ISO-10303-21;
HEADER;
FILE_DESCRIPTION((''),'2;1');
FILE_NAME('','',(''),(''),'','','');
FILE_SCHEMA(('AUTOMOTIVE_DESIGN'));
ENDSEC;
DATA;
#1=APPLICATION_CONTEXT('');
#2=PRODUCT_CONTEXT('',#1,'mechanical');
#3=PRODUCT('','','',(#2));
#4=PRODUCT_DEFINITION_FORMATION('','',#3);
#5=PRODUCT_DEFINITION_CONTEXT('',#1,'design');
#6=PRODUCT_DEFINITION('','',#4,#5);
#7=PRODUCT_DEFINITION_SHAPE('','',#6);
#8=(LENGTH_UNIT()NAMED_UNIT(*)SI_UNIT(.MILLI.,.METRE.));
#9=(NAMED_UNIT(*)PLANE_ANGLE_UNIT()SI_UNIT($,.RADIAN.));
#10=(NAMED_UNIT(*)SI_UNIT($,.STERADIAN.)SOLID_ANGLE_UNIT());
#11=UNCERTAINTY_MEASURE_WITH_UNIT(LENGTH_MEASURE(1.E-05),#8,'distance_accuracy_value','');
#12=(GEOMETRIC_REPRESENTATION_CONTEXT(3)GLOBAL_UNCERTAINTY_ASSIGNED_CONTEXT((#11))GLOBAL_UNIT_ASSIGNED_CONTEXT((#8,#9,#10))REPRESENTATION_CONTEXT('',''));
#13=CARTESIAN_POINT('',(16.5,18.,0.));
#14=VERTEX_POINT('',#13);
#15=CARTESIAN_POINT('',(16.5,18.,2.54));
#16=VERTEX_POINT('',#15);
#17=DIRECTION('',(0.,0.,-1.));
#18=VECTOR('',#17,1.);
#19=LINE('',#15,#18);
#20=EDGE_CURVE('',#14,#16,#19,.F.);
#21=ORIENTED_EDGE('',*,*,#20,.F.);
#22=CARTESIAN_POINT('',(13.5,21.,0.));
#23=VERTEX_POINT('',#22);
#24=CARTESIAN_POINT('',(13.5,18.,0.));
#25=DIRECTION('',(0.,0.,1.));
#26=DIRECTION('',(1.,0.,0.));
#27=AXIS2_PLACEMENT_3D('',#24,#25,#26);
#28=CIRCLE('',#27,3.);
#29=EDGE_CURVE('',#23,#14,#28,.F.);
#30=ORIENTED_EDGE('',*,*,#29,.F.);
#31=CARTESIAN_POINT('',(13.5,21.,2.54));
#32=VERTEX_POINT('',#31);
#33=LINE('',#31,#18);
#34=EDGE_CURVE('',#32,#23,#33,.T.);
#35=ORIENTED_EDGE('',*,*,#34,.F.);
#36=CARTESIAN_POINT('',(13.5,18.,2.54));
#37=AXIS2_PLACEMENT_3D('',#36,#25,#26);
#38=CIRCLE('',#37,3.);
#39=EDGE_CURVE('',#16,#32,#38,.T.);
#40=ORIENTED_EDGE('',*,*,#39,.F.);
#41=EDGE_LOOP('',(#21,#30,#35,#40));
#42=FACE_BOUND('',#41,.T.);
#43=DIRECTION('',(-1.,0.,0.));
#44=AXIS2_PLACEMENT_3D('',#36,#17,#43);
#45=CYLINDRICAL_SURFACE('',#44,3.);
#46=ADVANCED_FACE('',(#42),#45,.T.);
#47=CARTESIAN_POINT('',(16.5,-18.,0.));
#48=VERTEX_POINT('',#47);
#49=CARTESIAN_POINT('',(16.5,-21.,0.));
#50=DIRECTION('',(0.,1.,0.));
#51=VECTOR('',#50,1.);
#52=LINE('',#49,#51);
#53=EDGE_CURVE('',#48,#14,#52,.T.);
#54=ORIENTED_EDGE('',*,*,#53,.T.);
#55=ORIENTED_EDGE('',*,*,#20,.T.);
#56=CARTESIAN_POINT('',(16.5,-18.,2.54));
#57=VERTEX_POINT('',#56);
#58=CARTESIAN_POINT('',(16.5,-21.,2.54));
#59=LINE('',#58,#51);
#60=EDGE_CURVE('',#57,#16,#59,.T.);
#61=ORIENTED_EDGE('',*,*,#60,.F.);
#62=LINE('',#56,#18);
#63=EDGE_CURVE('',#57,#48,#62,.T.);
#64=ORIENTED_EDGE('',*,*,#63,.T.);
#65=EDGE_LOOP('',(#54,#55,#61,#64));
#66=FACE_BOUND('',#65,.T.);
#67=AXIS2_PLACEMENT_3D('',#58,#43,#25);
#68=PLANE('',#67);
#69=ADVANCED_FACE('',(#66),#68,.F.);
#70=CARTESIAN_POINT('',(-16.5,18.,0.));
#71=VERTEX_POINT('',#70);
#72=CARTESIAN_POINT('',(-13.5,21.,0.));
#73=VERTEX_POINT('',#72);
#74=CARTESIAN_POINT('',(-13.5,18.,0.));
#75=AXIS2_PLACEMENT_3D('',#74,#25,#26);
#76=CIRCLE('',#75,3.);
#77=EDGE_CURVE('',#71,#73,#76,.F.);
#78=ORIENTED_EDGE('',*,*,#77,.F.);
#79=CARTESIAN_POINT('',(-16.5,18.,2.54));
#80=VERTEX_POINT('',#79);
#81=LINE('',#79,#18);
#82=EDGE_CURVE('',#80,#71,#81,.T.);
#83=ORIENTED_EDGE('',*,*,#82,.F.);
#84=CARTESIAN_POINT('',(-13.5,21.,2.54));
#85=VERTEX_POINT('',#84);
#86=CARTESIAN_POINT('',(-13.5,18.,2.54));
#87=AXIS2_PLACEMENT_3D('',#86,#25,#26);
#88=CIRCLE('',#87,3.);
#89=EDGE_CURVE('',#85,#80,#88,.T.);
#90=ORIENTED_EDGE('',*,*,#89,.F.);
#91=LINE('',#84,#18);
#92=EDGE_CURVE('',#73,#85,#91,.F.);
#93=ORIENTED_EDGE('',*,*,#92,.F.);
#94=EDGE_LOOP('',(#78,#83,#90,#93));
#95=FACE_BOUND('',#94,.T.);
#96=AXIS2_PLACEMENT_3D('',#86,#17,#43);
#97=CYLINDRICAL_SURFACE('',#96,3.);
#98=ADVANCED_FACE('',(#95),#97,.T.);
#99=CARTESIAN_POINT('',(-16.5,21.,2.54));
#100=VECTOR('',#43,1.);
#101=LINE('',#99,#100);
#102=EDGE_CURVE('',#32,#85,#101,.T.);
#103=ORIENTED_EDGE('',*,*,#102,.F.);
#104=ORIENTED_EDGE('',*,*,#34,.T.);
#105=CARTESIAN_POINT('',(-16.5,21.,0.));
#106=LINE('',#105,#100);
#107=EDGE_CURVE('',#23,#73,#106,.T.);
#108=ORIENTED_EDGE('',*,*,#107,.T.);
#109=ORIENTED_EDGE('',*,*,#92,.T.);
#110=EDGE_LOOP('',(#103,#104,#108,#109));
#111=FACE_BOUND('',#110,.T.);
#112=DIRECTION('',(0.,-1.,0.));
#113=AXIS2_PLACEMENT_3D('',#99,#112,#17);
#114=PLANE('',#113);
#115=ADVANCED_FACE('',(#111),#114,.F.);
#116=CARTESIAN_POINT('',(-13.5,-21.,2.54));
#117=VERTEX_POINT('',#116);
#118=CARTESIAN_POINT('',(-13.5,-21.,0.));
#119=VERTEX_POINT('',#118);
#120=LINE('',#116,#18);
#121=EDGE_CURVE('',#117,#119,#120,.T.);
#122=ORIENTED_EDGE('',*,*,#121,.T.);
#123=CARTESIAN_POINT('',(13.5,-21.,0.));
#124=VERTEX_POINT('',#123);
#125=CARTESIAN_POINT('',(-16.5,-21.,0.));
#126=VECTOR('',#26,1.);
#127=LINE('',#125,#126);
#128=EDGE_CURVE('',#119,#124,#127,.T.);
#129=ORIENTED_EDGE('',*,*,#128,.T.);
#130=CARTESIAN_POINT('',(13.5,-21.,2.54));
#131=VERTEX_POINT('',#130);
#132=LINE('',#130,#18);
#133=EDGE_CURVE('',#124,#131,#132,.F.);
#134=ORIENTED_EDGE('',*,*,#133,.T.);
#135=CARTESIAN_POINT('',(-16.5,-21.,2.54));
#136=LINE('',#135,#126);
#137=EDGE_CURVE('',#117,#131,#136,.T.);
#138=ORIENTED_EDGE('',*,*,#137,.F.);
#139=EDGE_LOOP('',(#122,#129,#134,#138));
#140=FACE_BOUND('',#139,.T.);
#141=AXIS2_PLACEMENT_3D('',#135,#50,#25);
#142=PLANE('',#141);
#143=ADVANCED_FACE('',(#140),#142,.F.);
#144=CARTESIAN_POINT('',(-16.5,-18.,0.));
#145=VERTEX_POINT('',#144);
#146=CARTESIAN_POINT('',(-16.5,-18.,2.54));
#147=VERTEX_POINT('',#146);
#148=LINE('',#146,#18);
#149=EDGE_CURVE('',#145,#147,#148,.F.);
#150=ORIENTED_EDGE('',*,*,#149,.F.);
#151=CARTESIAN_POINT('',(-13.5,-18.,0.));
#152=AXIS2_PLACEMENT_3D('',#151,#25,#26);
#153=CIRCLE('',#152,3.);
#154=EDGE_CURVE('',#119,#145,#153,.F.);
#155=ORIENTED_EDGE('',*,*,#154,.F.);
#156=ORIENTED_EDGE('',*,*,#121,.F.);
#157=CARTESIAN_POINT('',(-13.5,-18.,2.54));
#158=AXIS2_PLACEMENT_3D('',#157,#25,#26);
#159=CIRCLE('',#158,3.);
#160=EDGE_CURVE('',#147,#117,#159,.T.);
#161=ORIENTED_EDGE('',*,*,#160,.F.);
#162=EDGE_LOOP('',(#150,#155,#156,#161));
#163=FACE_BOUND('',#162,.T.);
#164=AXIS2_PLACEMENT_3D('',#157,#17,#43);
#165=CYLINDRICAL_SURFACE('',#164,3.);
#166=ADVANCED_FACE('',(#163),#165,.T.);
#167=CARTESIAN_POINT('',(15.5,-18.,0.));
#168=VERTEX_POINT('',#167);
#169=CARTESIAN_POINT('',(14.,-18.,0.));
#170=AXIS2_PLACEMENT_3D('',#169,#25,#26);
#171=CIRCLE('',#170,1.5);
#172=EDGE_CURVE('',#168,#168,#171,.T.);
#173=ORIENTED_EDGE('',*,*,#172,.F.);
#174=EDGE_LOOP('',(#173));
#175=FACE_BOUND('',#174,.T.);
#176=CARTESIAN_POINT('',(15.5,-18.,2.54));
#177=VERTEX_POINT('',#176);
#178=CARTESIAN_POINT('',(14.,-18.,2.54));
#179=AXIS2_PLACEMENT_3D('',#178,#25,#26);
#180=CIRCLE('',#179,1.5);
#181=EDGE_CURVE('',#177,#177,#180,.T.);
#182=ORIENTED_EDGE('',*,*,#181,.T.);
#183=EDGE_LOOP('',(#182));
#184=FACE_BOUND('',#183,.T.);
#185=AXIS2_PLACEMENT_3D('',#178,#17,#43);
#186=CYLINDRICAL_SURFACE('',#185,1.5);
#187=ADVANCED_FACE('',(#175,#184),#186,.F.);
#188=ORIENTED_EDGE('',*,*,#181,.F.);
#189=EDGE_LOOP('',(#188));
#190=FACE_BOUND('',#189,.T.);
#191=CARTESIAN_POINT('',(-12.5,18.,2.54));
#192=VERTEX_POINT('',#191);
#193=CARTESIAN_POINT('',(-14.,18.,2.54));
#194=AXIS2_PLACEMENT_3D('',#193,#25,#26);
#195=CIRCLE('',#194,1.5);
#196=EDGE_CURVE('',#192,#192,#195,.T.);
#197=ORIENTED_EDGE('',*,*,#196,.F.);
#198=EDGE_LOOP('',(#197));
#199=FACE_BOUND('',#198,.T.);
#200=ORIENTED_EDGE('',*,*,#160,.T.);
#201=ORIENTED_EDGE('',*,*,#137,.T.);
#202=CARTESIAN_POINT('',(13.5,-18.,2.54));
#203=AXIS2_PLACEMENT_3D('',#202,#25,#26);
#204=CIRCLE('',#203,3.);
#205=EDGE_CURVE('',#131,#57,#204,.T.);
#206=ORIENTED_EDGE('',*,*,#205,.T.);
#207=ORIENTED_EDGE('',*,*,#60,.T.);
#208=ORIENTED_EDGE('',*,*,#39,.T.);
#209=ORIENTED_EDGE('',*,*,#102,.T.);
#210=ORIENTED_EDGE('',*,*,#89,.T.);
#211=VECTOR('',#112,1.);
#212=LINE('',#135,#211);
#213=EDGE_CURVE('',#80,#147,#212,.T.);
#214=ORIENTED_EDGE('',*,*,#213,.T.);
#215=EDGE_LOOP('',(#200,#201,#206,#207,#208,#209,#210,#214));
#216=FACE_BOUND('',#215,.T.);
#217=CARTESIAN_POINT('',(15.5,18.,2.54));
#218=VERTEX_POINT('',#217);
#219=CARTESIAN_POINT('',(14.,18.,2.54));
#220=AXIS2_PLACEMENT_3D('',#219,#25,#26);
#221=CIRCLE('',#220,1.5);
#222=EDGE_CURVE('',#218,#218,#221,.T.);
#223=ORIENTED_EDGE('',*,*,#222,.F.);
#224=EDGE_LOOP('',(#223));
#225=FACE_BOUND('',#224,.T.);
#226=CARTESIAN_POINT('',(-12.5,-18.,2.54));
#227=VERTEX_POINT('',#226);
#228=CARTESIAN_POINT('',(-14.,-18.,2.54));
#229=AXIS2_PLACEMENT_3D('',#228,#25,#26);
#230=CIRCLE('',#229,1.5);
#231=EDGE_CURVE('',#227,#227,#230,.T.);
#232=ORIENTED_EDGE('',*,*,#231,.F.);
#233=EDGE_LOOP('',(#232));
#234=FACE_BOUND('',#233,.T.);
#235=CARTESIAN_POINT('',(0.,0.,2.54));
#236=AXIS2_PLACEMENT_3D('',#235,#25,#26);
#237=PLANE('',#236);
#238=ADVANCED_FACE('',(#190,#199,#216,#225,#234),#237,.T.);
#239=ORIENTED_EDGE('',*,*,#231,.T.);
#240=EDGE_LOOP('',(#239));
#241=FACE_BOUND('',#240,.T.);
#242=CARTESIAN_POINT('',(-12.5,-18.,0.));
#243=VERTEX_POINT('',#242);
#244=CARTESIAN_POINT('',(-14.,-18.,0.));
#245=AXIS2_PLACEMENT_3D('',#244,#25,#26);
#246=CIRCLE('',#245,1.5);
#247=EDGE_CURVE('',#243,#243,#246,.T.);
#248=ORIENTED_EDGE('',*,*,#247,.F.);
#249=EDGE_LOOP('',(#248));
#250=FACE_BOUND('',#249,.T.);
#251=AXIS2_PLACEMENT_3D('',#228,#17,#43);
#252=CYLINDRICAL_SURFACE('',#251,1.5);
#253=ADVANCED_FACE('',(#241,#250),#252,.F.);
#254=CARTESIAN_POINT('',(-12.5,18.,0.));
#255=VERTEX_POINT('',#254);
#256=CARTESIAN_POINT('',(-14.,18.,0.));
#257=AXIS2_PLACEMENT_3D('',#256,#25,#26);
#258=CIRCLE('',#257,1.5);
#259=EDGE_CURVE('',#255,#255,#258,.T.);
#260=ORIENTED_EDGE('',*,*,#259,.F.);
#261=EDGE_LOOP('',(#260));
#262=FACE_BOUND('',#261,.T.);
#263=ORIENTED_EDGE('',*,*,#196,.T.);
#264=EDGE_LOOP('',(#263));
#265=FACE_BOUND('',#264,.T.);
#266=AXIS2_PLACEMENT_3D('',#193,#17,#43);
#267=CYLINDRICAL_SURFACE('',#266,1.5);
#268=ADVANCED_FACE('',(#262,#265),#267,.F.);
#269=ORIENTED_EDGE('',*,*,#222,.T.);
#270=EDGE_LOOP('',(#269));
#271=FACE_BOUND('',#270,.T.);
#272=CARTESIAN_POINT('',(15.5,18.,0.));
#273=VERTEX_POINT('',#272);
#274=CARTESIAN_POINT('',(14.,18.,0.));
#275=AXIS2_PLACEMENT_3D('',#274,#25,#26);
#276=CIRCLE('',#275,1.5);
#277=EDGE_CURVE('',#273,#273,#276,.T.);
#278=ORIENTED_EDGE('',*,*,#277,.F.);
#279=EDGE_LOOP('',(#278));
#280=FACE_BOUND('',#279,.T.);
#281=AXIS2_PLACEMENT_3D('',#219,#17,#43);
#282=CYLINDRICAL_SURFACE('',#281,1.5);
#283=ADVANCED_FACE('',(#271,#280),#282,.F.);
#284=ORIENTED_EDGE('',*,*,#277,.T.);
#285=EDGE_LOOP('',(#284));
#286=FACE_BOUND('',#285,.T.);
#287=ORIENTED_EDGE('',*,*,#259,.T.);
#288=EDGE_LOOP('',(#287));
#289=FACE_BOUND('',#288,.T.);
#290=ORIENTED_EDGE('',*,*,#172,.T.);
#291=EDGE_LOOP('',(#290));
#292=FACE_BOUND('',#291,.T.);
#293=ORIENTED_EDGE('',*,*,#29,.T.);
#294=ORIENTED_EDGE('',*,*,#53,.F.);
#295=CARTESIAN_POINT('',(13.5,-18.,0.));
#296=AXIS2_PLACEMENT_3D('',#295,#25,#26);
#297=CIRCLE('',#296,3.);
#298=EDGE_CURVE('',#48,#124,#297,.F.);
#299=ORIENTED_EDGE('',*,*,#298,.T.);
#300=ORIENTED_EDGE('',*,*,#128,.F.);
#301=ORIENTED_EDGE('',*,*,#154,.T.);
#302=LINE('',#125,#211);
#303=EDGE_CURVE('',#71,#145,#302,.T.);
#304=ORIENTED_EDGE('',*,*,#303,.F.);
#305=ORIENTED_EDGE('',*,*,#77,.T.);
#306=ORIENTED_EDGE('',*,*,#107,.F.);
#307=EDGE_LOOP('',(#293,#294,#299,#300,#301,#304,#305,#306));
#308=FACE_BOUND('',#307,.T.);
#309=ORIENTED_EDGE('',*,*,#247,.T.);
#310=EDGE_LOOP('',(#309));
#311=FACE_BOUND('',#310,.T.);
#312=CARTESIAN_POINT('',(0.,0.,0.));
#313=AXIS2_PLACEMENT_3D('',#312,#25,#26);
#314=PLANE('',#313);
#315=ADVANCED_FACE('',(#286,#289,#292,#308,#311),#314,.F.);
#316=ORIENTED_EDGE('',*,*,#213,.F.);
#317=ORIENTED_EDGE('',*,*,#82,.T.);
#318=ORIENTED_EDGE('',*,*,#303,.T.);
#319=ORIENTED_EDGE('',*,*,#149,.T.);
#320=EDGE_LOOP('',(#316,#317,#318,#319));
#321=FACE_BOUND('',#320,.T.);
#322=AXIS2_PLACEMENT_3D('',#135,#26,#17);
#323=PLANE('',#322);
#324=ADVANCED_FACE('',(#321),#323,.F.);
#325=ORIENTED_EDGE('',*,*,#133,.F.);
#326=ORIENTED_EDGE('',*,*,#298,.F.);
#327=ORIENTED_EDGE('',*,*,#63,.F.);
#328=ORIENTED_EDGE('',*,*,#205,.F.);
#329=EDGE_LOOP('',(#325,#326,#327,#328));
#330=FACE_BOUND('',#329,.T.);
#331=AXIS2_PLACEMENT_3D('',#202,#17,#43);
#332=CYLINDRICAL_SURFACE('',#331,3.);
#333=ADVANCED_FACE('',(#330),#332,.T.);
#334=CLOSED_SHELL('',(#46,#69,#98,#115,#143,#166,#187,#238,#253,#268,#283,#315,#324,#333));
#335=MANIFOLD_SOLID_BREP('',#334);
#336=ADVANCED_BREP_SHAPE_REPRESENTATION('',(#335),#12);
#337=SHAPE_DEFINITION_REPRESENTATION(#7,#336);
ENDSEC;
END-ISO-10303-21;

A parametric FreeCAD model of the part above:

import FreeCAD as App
import Part
import Sketcher

V = App.Vector


def edges_at(feature, points):
    """Names of the edges that pass closest to the given points."""
    edges = feature.Shape.Edges
    near = lambda p: min(range(len(edges)), key=lambda i: edges[i].distToShape(Part.Vertex(*p))[0])
    return sorted({f"Edge{near(p) + 1}" for p in points})

doc = App.newDocument("Part")
body = doc.addObject("PartDesign::Body", "Body")

sketch1 = body.newObject("Sketcher::SketchObject", "Sketch")
sketch1.AttachmentSupport = (doc.getObject("XY_Plane"), [""])
sketch1.MapMode = "FlatFace"
sketch1.addGeometry([
    Part.LineSegment(V(-16.5, -21, 0), V(16.5, -21, 0)),
    Part.LineSegment(V(16.5, -21, 0), V(16.5, 21, 0)),
    Part.LineSegment(V(16.5, 21, 0), V(-16.5, 21, 0)),
    Part.LineSegment(V(-16.5, 21, 0), V(-16.5, -21, 0)),
    Part.Circle(V(14, -18, 0), V(0, 0, 1), 1.5),
    Part.Circle(V(14, 18, 0), V(0, 0, 1), 1.5),
    Part.Circle(V(-14, -18, 0), V(0, 0, 1), 1.5),
    Part.Circle(V(-14, 18, 0), V(0, 0, 1), 1.5),
], False)
sketch1.addConstraint([
    Sketcher.Constraint("Coincident", 0, 2, 1, 1),
    Sketcher.Constraint("Coincident", 1, 2, 2, 1),
    Sketcher.Constraint("Coincident", 2, 2, 3, 1),
    Sketcher.Constraint("Coincident", 3, 2, 0, 1),
    Sketcher.Constraint("Horizontal", 0),
    Sketcher.Constraint("Vertical", 1),
    Sketcher.Constraint("Horizontal", 2),
    Sketcher.Constraint("Vertical", 3),
    Sketcher.Constraint("Equal", 4, 5),
    Sketcher.Constraint("Equal", 5, 6),
    Sketcher.Constraint("Equal", 6, 7),
    Sketcher.Constraint("Symmetric", 5, 3, 6, 3, -1, 1),
    Sketcher.Constraint("Symmetric", 4, 3, 7, 3, -1, 1),
    Sketcher.Constraint("Symmetric", 0, 2, 2, 2, -1, 1),
    Sketcher.Constraint("Symmetric", 4, 3, 6, 3, -2),
    Sketcher.Constraint("Diameter", 4, 3.0),
    Sketcher.Constraint("DistanceX", 0, 1, 0, 2, 33.0),
    Sketcher.Constraint("DistanceY", 1, 1, 1, 2, 42.0),
    Sketcher.Constraint("DistanceX", -1, 1, 4, 3, 14.0),
    Sketcher.Constraint("DistanceY", 4, 3, -1, 1, 18.0),
])
pad1 = body.newObject("PartDesign::Pad", "Pad")
pad1.Profile = sketch1
pad1.Length = 2.54
doc.recompute()

fillet = body.newObject("PartDesign::Fillet", "Fillet")
fillet.Base = (pad1, edges_at(pad1, [
    (16.5, 21, 1.27),
    (16.5, -21, 1.27),
    (-16.5, -21, 1.27),
    (-16.5, 21, 1.27),
]))
fillet.Radius = 3

doc.recompute()
